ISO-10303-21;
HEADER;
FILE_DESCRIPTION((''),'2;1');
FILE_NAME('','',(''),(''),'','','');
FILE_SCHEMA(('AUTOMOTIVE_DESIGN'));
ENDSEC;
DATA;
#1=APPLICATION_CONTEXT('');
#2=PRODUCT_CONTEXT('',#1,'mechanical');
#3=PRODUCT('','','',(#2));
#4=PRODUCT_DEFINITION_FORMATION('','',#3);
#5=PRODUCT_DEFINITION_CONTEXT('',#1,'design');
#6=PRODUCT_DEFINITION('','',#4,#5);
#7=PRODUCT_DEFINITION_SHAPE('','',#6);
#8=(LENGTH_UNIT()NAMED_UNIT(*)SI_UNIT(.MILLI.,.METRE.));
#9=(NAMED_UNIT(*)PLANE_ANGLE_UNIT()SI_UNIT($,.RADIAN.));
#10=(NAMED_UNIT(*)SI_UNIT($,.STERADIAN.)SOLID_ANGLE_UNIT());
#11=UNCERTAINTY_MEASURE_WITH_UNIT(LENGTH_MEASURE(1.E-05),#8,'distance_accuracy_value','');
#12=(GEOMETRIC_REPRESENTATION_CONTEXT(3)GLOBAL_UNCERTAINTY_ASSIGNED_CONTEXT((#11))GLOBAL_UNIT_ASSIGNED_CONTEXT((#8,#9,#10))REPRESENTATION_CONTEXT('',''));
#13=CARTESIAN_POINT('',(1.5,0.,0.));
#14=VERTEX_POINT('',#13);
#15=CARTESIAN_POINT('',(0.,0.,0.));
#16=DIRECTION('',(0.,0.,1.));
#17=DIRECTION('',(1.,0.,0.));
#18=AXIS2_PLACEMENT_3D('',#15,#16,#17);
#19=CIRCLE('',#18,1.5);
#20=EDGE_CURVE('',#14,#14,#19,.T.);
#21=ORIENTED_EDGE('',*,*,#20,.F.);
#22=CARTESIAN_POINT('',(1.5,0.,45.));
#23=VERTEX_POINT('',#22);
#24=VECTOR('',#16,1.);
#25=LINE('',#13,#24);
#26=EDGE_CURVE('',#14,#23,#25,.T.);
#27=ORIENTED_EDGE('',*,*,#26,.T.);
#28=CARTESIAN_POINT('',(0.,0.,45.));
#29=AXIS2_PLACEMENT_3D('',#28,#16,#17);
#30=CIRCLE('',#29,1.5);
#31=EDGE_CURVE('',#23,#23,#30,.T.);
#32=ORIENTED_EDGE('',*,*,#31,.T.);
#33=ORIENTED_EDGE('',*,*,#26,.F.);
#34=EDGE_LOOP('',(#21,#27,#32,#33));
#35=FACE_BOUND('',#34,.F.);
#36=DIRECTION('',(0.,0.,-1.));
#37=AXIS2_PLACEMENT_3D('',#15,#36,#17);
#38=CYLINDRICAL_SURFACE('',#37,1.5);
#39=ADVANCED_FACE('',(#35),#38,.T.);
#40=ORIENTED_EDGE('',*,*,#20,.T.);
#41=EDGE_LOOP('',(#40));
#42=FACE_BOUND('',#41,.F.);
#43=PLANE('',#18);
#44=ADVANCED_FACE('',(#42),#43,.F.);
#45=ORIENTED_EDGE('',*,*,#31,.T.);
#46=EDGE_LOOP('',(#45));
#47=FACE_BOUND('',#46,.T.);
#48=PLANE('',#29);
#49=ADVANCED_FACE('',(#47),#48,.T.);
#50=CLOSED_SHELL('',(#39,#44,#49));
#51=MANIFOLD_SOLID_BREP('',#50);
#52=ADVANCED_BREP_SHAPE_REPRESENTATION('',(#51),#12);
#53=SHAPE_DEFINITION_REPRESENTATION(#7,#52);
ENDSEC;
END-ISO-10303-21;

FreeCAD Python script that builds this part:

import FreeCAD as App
import Part
import Sketcher

doc = App.newDocument("Part")
params = doc.addObject("Spreadsheet::Sheet", "Params")
for row, (alias, value) in enumerate([
    ("sketch1_diameter", "3 mm"),
    ("pad1_length", "45 mm"),
], start=1):
    params.set(f"A{row}", alias)
    params.set(f"B{row}", "=" + value)
    params.setAlias(f"B{row}", alias)

body = doc.addObject("PartDesign::Body", "Body")

# Sketch on XY plane
sketch1 = body.newObject("Sketcher::SketchObject", "Sketch")
sketch1.AttachmentSupport = (doc.getObject("XY_Plane"), [""])
sketch1.MapMode = "FlatFace"
sketch1.addGeometry(Part.Circle(App.Vector(0, 0, 0), App.Vector(0, 0, 1), 1.5), False)
sketch1.addConstraint([
    Sketcher.Constraint("Coincident", 0, 3, -1, 1),
    Sketcher.Constraint("Diameter", 0, 3.0),
])
sketch1.setExpression("Constraints[1]", "Params.sketch1_diameter")
pad1 = body.newObject("PartDesign::Pad", "Pad")
pad1.Profile = sketch1
pad1.setExpression("Length", "Params.pad1_length")

doc.recompute()
